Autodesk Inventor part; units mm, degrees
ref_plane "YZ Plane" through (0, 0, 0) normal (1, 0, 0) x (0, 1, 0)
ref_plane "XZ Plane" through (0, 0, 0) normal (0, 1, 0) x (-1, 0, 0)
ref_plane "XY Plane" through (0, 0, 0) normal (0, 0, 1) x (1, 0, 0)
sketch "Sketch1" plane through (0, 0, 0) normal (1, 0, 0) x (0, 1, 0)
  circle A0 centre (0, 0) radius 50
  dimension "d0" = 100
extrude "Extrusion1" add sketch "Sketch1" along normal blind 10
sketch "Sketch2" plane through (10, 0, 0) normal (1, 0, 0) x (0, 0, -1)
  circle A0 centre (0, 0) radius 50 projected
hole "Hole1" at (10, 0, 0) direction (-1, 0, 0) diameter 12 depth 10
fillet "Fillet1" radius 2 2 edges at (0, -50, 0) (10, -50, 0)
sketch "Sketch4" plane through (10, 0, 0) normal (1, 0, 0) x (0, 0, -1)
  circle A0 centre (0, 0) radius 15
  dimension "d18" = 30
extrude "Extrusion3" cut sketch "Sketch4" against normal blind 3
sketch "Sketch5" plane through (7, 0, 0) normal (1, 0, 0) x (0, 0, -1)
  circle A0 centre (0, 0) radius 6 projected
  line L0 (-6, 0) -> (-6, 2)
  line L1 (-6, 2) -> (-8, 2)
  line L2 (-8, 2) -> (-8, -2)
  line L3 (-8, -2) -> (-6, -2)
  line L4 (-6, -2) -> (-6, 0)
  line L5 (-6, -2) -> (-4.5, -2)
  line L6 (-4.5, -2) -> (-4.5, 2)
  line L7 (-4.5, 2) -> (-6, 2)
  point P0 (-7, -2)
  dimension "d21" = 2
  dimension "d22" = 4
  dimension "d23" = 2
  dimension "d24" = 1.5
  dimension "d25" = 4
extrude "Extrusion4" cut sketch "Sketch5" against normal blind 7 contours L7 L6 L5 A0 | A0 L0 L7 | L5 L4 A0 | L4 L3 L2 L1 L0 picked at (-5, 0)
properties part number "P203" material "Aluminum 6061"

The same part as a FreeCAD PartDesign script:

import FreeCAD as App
import Part
import Sketcher
from FreeCAD import Vector
Q = App.Units.Quantity


def edges_at(feature, points):
    """Names of the edges that pass closest to the given points."""
    edges = feature.Shape.Edges
    near = lambda p: min(range(len(edges)), key=lambda i: edges[i].distToShape(Part.Vertex(*p))[0])
    return sorted({f"Edge{near(p) + 1}" for p in points})


def add_polygon(sketch, points):
    """Adds a closed chain of lines whose ends are joined by coincident constraints."""
    first, n = sketch.GeometryCount, len(points)
    for a, b in zip(points, points[1:] + points[:1]):
        sketch.addGeometry(Part.LineSegment(App.Vector(*a, 0), App.Vector(*b, 0)), False)
    for i in range(n):
        sketch.addConstraint(Sketcher.Constraint("Coincident", first + i, 2, first + (i + 1) % n, 1))

doc = App.newDocument("Part")
body = doc.addObject("PartDesign::Body", "Body")

sketch1 = body.newObject("Sketcher::SketchObject", "Sketch")
sketch1.AttachmentSupport = (doc.getObject("YZ_Plane"), [""])
sketch1.MapMode = "FlatFace"
sketch1.addGeometry(Part.Circle(Vector(0, 0, 0), Vector(0, 0, 1), 50), False)
sketch1.addConstraint(Sketcher.Constraint("Coincident", 0, 3, -1, 1))
sketch1.addConstraint(Sketcher.Constraint("Diameter", 0, Q("100 mm")))
pad1 = body.newObject("PartDesign::Pad", "Pad")
pad1.Profile = sketch1
pad1.Length = 10

sketch2 = body.newObject("Sketcher::SketchObject", "Sketch001")
sketch2.AttachmentSupport = (doc.getObject("YZ_Plane"), [""])
sketch2.MapMode = "FlatFace"
sketch2.AttachmentOffset = App.Placement(Vector(0, 0, 10), App.Rotation())
sketch2.addGeometry(Part.Circle(Vector(0, 0, 0), Vector(0, 0, 1), 6), False)
sketch2.addConstraint(Sketcher.Constraint("Coincident", 0, 3, -1, 1))
sketch2.addConstraint(Sketcher.Constraint("Diameter", 0, Q("12 mm")))
doc.recompute()
hole = body.newObject("PartDesign::Hole", "Hole")
hole.Profile = sketch2
hole.ThreadType = "None"
hole.Diameter = 12
hole.DepthType = "Dimension"
hole.Depth = 10
hole.DrillPoint = "Flat"
doc.recompute()

fillet = body.newObject("PartDesign::Fillet", "Fillet")
fillet.Base = (hole, edges_at(hole, [(0, -50, 0), (10, -50, 0)]))
fillet.Radius = 2

sketch3 = body.newObject("Sketcher::SketchObject", "Sketch002")
sketch3.AttachmentSupport = (doc.getObject("YZ_Plane"), [""])
sketch3.MapMode = "FlatFace"
sketch3.AttachmentOffset = App.Placement(Vector(0, 0, 10), App.Rotation())
sketch3.addGeometry(Part.Circle(Vector(0, 0, 0), Vector(0, 0, 1), 15), False)
sketch3.addConstraint(Sketcher.Constraint("Coincident", 0, 3, -1, 1))
sketch3.addConstraint(Sketcher.Constraint("Diameter", 0, Q("30 mm")))
pocket1 = body.newObject("PartDesign::Pocket", "Pocket")
pocket1.Profile = sketch3
pocket1.Length = 3

sketch4 = body.newObject("Sketcher::SketchObject", "Sketch003")
sketch4.AttachmentSupport = (doc.getObject("YZ_Plane"), [""])
sketch4.MapMode = "FlatFace"
sketch4.AttachmentOffset = App.Placement(Vector(0, 0, 7), App.Rotation())
add_polygon(sketch4, [(2, 4.5), (2, 8), (-2, 8), (-2, 4.5)])
sketch4.addConstraint(Sketcher.Constraint("Vertical", 0))
sketch4.addConstraint(Sketcher.Constraint("Horizontal", 1))
sketch4.addConstraint(Sketcher.Constraint("Vertical", 2))
sketch4.addConstraint(Sketcher.Constraint("Horizontal", 3))
sketch4.addConstraint(Sketcher.Constraint("DistanceX", 1, 2, 1, 1, Q("4 mm")))
sketch4.addConstraint(Sketcher.Constraint("DistanceX", -1, 1, 0, 2, Q("2 mm")))
sketch4.addConstraint(Sketcher.Constraint("DistanceY", 0, 1, 0, 2, Q("3.5 mm")))
sketch4.addConstraint(Sketcher.Constraint("DistanceY", -1, 1, 0, 2, Q("8 mm")))
pocket2 = body.newObject("PartDesign::Pocket", "Pocket001")
pocket2.Profile = sketch4
pocket2.Length = 7

doc.recompute()
